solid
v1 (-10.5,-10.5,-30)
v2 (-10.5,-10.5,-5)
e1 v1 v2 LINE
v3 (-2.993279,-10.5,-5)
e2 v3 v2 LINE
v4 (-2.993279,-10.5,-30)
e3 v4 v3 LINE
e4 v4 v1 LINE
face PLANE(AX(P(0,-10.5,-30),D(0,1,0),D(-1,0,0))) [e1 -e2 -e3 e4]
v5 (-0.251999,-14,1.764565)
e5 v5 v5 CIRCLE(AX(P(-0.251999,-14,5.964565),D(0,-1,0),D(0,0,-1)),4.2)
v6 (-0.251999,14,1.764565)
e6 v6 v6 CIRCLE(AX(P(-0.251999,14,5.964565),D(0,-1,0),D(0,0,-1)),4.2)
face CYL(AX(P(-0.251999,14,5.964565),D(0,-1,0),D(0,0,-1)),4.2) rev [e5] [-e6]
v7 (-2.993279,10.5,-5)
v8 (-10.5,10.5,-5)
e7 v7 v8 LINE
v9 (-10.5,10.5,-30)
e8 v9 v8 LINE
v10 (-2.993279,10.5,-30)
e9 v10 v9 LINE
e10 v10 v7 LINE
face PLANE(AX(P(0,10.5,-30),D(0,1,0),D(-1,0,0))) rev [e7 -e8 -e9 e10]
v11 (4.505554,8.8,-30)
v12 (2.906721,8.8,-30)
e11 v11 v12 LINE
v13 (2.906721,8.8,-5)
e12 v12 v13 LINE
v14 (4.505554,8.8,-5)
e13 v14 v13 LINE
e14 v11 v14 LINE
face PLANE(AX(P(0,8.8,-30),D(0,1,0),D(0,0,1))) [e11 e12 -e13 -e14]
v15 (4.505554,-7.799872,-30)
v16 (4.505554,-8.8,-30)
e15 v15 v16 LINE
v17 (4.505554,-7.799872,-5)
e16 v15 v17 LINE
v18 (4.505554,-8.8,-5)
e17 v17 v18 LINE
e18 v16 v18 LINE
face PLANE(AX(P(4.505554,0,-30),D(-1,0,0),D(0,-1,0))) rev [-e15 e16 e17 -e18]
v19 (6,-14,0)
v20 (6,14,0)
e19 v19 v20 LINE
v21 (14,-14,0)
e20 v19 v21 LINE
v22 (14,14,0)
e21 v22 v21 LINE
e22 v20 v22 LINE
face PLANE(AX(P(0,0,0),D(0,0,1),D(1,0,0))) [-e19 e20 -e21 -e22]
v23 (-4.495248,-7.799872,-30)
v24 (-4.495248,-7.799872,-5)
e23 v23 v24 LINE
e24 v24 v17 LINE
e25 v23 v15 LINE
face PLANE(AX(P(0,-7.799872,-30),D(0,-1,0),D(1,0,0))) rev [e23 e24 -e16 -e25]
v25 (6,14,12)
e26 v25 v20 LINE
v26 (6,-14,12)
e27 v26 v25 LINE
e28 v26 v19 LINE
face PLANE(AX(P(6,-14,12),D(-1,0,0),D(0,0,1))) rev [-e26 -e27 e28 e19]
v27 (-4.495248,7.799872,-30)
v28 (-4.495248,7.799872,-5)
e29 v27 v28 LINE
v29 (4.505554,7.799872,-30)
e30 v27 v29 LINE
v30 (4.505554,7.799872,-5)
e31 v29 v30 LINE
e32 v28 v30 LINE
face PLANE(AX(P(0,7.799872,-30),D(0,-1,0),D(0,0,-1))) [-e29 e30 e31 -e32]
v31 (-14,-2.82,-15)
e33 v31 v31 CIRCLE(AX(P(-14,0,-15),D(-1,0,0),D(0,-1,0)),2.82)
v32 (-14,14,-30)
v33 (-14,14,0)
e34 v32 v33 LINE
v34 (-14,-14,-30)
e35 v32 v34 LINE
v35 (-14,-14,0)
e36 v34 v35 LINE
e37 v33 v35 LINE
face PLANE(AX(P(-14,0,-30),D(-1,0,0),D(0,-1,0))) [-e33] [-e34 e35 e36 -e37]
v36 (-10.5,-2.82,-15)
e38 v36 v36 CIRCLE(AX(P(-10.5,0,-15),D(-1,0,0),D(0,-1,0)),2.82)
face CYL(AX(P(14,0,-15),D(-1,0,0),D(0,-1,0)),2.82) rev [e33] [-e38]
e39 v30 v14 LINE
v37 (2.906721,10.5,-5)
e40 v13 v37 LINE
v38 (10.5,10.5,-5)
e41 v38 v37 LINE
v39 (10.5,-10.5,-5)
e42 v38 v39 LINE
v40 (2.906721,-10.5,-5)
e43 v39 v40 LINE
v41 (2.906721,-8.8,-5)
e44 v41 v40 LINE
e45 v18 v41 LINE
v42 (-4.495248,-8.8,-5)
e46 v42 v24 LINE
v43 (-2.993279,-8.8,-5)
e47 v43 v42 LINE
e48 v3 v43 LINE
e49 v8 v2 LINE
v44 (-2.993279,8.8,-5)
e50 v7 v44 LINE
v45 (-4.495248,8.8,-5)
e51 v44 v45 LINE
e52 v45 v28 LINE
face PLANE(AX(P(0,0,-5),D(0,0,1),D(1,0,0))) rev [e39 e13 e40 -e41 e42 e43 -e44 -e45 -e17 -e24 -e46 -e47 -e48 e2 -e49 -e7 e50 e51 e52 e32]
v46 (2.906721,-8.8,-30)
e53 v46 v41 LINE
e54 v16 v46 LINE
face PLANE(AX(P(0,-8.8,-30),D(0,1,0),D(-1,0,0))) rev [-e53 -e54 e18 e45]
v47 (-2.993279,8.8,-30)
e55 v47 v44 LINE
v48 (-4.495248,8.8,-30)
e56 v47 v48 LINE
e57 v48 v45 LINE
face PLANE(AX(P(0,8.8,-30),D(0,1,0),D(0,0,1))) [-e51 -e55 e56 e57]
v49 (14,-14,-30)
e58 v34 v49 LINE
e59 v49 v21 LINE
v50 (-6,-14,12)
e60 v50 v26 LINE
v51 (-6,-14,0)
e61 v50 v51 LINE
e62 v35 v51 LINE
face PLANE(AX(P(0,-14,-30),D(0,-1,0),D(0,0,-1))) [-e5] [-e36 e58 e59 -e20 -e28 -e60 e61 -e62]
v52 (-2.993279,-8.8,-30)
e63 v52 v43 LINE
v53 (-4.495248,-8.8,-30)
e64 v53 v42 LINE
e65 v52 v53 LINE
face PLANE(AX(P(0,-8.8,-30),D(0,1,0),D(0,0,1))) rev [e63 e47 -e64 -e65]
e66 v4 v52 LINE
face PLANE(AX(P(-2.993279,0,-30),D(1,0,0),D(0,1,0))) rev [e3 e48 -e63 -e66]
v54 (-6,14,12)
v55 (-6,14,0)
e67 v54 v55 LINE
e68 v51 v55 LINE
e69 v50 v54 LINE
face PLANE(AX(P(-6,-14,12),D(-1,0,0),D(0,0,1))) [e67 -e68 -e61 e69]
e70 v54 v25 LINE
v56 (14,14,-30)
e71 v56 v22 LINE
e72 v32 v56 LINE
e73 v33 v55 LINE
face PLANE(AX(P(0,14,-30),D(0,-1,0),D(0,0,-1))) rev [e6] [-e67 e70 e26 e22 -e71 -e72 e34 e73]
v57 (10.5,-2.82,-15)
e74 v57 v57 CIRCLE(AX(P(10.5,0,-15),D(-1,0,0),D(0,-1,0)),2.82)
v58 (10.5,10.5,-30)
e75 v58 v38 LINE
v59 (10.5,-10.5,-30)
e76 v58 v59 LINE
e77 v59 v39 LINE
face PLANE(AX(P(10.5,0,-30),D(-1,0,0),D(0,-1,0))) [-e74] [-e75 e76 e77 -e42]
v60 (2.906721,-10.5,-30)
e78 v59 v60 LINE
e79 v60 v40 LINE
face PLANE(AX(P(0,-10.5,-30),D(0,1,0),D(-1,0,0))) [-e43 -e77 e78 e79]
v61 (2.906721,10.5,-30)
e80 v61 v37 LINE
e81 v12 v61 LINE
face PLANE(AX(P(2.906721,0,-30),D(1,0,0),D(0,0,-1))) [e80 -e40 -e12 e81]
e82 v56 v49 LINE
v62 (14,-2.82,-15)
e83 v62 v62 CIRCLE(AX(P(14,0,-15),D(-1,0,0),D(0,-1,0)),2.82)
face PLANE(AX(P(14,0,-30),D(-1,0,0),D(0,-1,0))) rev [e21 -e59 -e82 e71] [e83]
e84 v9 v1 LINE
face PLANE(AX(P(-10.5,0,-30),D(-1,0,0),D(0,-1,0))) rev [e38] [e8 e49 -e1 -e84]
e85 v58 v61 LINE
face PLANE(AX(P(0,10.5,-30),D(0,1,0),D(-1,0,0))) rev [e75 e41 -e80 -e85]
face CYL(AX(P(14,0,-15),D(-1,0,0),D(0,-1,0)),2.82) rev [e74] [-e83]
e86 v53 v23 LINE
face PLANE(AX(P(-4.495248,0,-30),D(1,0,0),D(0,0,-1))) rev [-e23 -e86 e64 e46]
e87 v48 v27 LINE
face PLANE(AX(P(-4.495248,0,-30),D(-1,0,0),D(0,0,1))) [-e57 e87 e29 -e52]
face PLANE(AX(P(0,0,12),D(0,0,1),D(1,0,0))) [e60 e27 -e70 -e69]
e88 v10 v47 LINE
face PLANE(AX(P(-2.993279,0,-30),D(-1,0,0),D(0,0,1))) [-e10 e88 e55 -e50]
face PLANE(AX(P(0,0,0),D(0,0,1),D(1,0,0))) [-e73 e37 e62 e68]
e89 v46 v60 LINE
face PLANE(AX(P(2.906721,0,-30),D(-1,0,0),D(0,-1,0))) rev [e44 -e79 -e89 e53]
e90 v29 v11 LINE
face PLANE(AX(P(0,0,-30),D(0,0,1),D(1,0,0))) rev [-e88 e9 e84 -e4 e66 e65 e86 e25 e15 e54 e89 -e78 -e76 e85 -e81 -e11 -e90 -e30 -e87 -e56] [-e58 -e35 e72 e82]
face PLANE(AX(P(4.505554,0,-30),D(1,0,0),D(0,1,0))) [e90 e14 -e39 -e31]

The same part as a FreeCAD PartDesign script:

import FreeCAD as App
import Part
import Sketcher
from FreeCAD import Vector
Q = App.Units.Quantity


def add_polygon(sketch, points):
    """Adds a closed chain of lines whose ends are joined by coincident constraints."""
    first, n = sketch.GeometryCount, len(points)
    for a, b in zip(points, points[1:] + points[:1]):
        sketch.addGeometry(Part.LineSegment(App.Vector(*a, 0), App.Vector(*b, 0)), False)
    for i in range(n):
        sketch.addConstraint(Sketcher.Constraint("Coincident", first + i, 2, first + (i + 1) % n, 1))

doc = App.newDocument("Part")
params = doc.addObject("Spreadsheet::Sheet", "Params")
for row, (alias, value) in enumerate([
    ("sketch1_width", "5.9 mm"),
    ("sketch1_height", "1.7 mm"),
    ("pad1_length", "30 mm"),
    ("sketch2_width", "5.9 mm"),
    ("sketch2_height", "1.7 mm"),
    ("pad2_length", "30 mm"),
    ("sketch3_height", "21 mm"),
    ("sketch3_height2", "1.7 mm"),
    ("pad3_length", "5 mm"),
    ("sketch4_width", "28 mm"),
    ("sketch4_width2", "21 mm"),
    ("pad4_length", "30 mm"),
    ("sketch5_diameter", "5.64 mm"),
    ("sketch6_width", "12 mm"),
    ("sketch6_height", "28 mm"),
    ("pad5_length", "12 mm"),
    ("sketch7_diameter", "8.4 mm"),
], start=1):
    params.set(f"A{row}", alias)
    params.set(f"B{row}", "=" + value)
    params.setAlias(f"B{row}", alias)

body = doc.addObject("PartDesign::Body", "Body")

sketch1 = body.newObject("Sketcher::SketchObject", "Sketch")
sketch1.AttachmentSupport = (doc.getObject("XY_Plane"), [""])
sketch1.MapMode = "FlatFace"
add_polygon(sketch1, [(-3, -10.5), (2.9, -10.5), (2.9, -8.8), (4.5, -8.8), (4.5, -7.8), (-4.5, -7.8), (-4.5, -8.8), (-3, -8.8)])
sketch1.addConstraint(Sketcher.Constraint("Horizontal", 0))
sketch1.addConstraint(Sketcher.Constraint("Vertical", 1))
sketch1.addConstraint(Sketcher.Constraint("Horizontal", 2))
sketch1.addConstraint(Sketcher.Constraint("Vertical", 3))
sketch1.addConstraint(Sketcher.Constraint("Horizontal", 4))
sketch1.addConstraint(Sketcher.Constraint("Vertical", 5))
sketch1.addConstraint(Sketcher.Constraint("Horizontal", 6))
sketch1.addConstraint(Sketcher.Constraint("Vertical", 7))
sketch1.addConstraint(Sketcher.Constraint("Horizontal", 2, 2, 5, 2))
sketch1.addConstraint(Sketcher.Constraint("DistanceX", 0, 1, 0, 2, Q("5.9 mm")))
sketch1.addConstraint(Sketcher.Constraint("DistanceY", 1, 1, 1, 2, Q("1.7 mm")))
sketch1.addConstraint(Sketcher.Constraint("DistanceY", 0, 2, -1, 1, Q("10.5 mm")))
sketch1.addConstraint(Sketcher.Constraint("DistanceX", 6, 1, 6, 2, Q("1.501969 mm")))
sketch1.addConstraint(Sketcher.Constraint("DistanceY", 3, 1, 3, 2, Q("1.000128 mm")))
sketch1.addConstraint(Sketcher.Constraint("DistanceX", 2, 1, 2, 2, Q("1.598833 mm")))
sketch1.addConstraint(Sketcher.Constraint("DistanceX", -1, 1, 0, 2, Q("2.906721 mm")))
sketch1.setExpression("Constraints[17]", "Params.sketch1_width")
sketch1.setExpression("Constraints[18]", "Params.sketch1_height")
pad1 = body.newObject("PartDesign::Pad", "Pad")
pad1.Profile = sketch1
pad1.setExpression("Length", "Params.pad1_length")
pad1.Reversed = True
body2 = doc.addObject("PartDesign::Body", "Body001")

sketch2 = body2.newObject("Sketcher::SketchObject", "Sketch001")
sketch2.AttachmentSupport = (doc.getObject("XY_Plane001"), [""])
sketch2.MapMode = "FlatFace"
add_polygon(sketch2, [(2.9, 8.8), (2.9, 10.5), (-3, 10.5), (-3, 8.8), (-4.5, 8.8), (-4.5, 7.8), (4.5, 7.8), (4.5, 8.8)])
sketch2.addConstraint(Sketcher.Constraint("Vertical", 0))
sketch2.addConstraint(Sketcher.Constraint("Horizontal", 1))
sketch2.addConstraint(Sketcher.Constraint("Vertical", 2))
sketch2.addConstraint(Sketcher.Constraint("Horizontal", 3))
sketch2.addConstraint(Sketcher.Constraint("Vertical", 4))
sketch2.addConstraint(Sketcher.Constraint("Horizontal", 5))
sketch2.addConstraint(Sketcher.Constraint("Vertical", 6))
sketch2.addConstraint(Sketcher.Constraint("Horizontal", 7))
sketch2.addConstraint(Sketcher.Constraint("Horizontal", 3, 2, 6, 2))
sketch2.addConstraint(Sketcher.Constraint("DistanceX", 1, 2, 1, 1, Q("5.9 mm")))
sketch2.addConstraint(Sketcher.Constraint("DistanceY", 0, 1, 0, 2, Q("1.7 mm")))
sketch2.addConstraint(Sketcher.Constraint("DistanceY", -1, 1, 0, 2, Q("10.5 mm")))
sketch2.addConstraint(Sketcher.Constraint("DistanceX", 3, 2, 3, 1, Q("1.501969 mm")))
sketch2.addConstraint(Sketcher.Constraint("DistanceY", 4, 2, 4, 1, Q("1.000128 mm")))
sketch2.addConstraint(Sketcher.Constraint("DistanceX", 5, 1, 5, 2, Q("9.000802 mm")))
sketch2.addConstraint(Sketcher.Constraint("DistanceX", -1, 1, 0, 2, Q("2.906721 mm")))
sketch2.setExpression("Constraints[17]", "Params.sketch2_width")
sketch2.setExpression("Constraints[18]", "Params.sketch2_height")
pad2 = body2.newObject("PartDesign::Pad", "Pad001")
pad2.Profile = sketch2
pad2.setExpression("Length", "Params.pad2_length")
pad2.Reversed = True
body.AllowCompound = True
doc.recompute()

boolean = body.newObject("PartDesign::Boolean", "Boolean")
boolean.Type = "Fuse"
boolean.addObjects([body2])

sketch3 = body.newObject("Sketcher::SketchObject", "Sketch002")
sketch3.AttachmentSupport = (doc.getObject("XY_Plane"), [""])
sketch3.MapMode = "FlatFace"
add_polygon(sketch3, [(10.5, 10.5), (2.9, 10.5), (2.9, 8.8), (4.5, 8.8), (4.5, 7.8), (-4.5, 7.8), (-4.5, 8.8), (-3, 8.8), (-3, 10.5), (-10.5, 10.5), (-10.5, -10.5), (-3, -10.5), (-3, -8.8), (-4.5, -8.8), (-4.5, -7.8), (4.5, -7.8), (4.5, -8.8), (2.9, -8.8), (2.9, -10.5), (10.5, -10.5)])
sketch3.addConstraint(Sketcher.Constraint("Horizontal", 0))
sketch3.addConstraint(Sketcher.Constraint("Vertical", 1))
sketch3.addConstraint(Sketcher.Constraint("Horizontal", 2))
sketch3.addConstraint(Sketcher.Constraint("Vertical", 3))
sketch3.addConstraint(Sketcher.Constraint("Horizontal", 4))
sketch3.addConstraint(Sketcher.Constraint("Vertical", 5))
sketch3.addConstraint(Sketcher.Constraint("Horizontal", 6))
sketch3.addConstraint(Sketcher.Constraint("Vertical", 7))
sketch3.addConstraint(Sketcher.Constraint("Horizontal", 8))
sketch3.addConstraint(Sketcher.Constraint("Vertical", 9))
sketch3.addConstraint(Sketcher.Constraint("Horizontal", 10))
sketch3.addConstraint(Sketcher.Constraint("Vertical", 11))
sketch3.addConstraint(Sketcher.Constraint("Horizontal", 12))
sketch3.addConstraint(Sketcher.Constraint("Vertical", 13))
sketch3.addConstraint(Sketcher.Constraint("Horizontal", 14))
sketch3.addConstraint(Sketcher.Constraint("Vertical", 15))
sketch3.addConstraint(Sketcher.Constraint("Horizontal", 16))
sketch3.addConstraint(Sketcher.Constraint("Vertical", 17))
sketch3.addConstraint(Sketcher.Constraint("Horizontal", 18))
sketch3.addConstraint(Sketcher.Constraint("Vertical", 19))
sketch3.addConstraint(Sketcher.Constraint("Symmetric", 8, 2, 18, 2, -1, 1))
sketch3.addConstraint(Sketcher.Constraint("Symmetric", 7, 2, 10, 2, -1))
sketch3.addConstraint(Sketcher.Constraint("Symmetric", 5, 2, 12, 2, -1))
sketch3.addConstraint(Sketcher.Constraint("Symmetric", 3, 2, 14, 2, -1))
sketch3.addConstraint(Sketcher.Constraint("Symmetric", 1, 2, 16, 2, -1))
sketch3.addConstraint(Sketcher.Constraint("Horizontal", 2, 2, 5, 2))
sketch3.addConstraint(Sketcher.Constraint("Horizontal", 0, 2, 7, 2))
sketch3.addConstraint(Sketcher.Constraint("DistanceY", 9, 2, 9, 1, Q("21 mm")))
sketch3.addConstraint(Sketcher.Constraint("DistanceY", 1, 2, 1, 1, Q("1.7 mm")))
sketch3.addConstraint(Sketcher.Constraint("DistanceX", 8, 2, -1, 1, Q("10.5 mm")))
sketch3.addConstraint(Sketcher.Constraint("DistanceX", 6, 2, 1, 2, Q("5.9 mm")))
sketch3.addConstraint(Sketcher.Constraint("DistanceX", 0, 2, 0, 1, Q("7.593279 mm")))
sketch3.addConstraint(Sketcher.Constraint("DistanceX", 6, 1, 6, 2, Q("1.501969 mm")))
sketch3.addConstraint(Sketcher.Constraint("DistanceY", 3, 2, 3, 1, Q("1.000128 mm")))
sketch3.addConstraint(Sketcher.Constraint("DistanceX", 2, 1, 2, 2, Q("1.598833 mm")))
sketch3.setExpression("Constraints[47]", "Params.sketch3_height")
sketch3.setExpression("Constraints[48]", "Params.sketch3_height2")
pad3 = body.newObject("PartDesign::Pad", "Pad002")
pad3.Profile = sketch3
pad3.setExpression("Length", "Params.pad3_length")
pad3.Reversed = True

sketch4 = body.newObject("Sketcher::SketchObject", "Sketch003")
sketch4.AttachmentSupport = (doc.getObject("XY_Plane"), [""])
sketch4.MapMode = "FlatFace"
add_polygon(sketch4, [(-14, 14), (-14, -14), (14, -14), (14, 14)])
add_polygon(sketch4, [(10, -10), (-10, -10), (-10, 10), (10, 10)])
sketch4.addConstraint(Sketcher.Constraint("Vertical", 0))
sketch4.addConstraint(Sketcher.Constraint("Horizontal", 1))
sketch4.addConstraint(Sketcher.Constraint("Vertical", 2))
sketch4.addConstraint(Sketcher.Constraint("Horizontal", 3))
sketch4.addConstraint(Sketcher.Constraint("Horizontal", 4))
sketch4.addConstraint(Sketcher.Constraint("Vertical", 5))
sketch4.addConstraint(Sketcher.Constraint("Horizontal", 6))
sketch4.addConstraint(Sketcher.Constraint("Vertical", 7))
sketch4.addConstraint(Sketcher.Constraint("Symmetric", 0, 2, 2, 2, -1, 1))
sketch4.addConstraint(Sketcher.Constraint("Symmetric", 4, 2, 6, 2, -1, 1))
sketch4.addConstraint(Sketcher.Constraint("Equal", 3, 0))
sketch4.addConstraint(Sketcher.Constraint("Equal", 6, 5))
sketch4.addConstraint(Sketcher.Constraint("DistanceX", 1, 1, 1, 2, Q("28 mm")))
sketch4.addConstraint(Sketcher.Constraint("DistanceX", 4, 2, 4, 1, Q("21 mm")))
sketch4.setExpression("Constraints[20]", "Params.sketch4_width")
sketch4.setExpression("Constraints[21]", "Params.sketch4_width2")
pad4 = body.newObject("PartDesign::Pad", "Pad003")
pad4.Profile = sketch4
pad4.setExpression("Length", "Params.pad4_length")
pad4.Reversed = True

sketch5 = body.newObject("Sketcher::SketchObject", "Sketch004")
sketch5.AttachmentSupport = (doc.getObject("YZ_Plane"), [""])
sketch5.MapMode = "FlatFace"
sketch5.AttachmentOffset = App.Placement(Vector(0, 0, -14), App.Rotation())
sketch5.addGeometry(Part.Circle(Vector(0, -15, 0), Vector(0, 0, 1), 2.8), False)
sketch5.addConstraint(Sketcher.Constraint("PointOnObject", 0, 3, -2))
sketch5.addConstraint(Sketcher.Constraint("Diameter", 0, Q("5.64 mm")))
sketch5.addConstraint(Sketcher.Constraint("DistanceY", 0, 3, -1, 1, Q("15 mm")))
sketch5.setExpression("Constraints[1]", "Params.sketch5_diameter")
pocket1 = body.newObject("PartDesign::Pocket", "Pocket")
pocket1.Profile = sketch5
pocket1.Type = "ThroughAll"
pocket1.Reversed = True

sketch6 = body.newObject("Sketcher::SketchObject", "Sketch005")
sketch6.AttachmentSupport = (doc.getObject("XY_Plane"), [""])
sketch6.MapMode = "FlatFace"
add_polygon(sketch6, [(-6, 14), (-6, -14), (6, -14), (6, 14)])
sketch6.addConstraint(Sketcher.Constraint("Vertical", 0))
sketch6.addConstraint(Sketcher.Constraint("Horizontal", 1))
sketch6.addConstraint(Sketcher.Constraint("Vertical", 2))
sketch6.addConstraint(Sketcher.Constraint("Horizontal", 3))
sketch6.addConstraint(Sketcher.Constraint("Symmetric", 0, 2, 2, 2, -1, 1))
sketch6.addConstraint(Sketcher.Constraint("DistanceX", 1, 1, 1, 2, Q("12 mm")))
sketch6.addConstraint(Sketcher.Constraint("DistanceY", 0, 2, 0, 1, Q("28 mm")))
sketch6.setExpression("Constraints[9]", "Params.sketch6_width")
sketch6.setExpression("Constraints[10]", "Params.sketch6_height")
pad5 = body.newObject("PartDesign::Pad", "Pad004")
pad5.Profile = sketch6
pad5.setExpression("Length", "Params.pad5_length")

sketch7 = body.newObject("Sketcher::SketchObject", "Sketch006")
sketch7.AttachmentSupport = (doc.getObject("XZ_Plane"), [""])
sketch7.MapMode = "FlatFace"
sketch7.AttachmentOffset = App.Placement(Vector(0, 0, 14), App.Rotation())
sketch7.addGeometry(Part.Circle(Vector(-0.3, 6, 0), Vector(0, 0, 1), 4.2), False)
sketch7.addConstraint(Sketcher.Constraint("Diameter", 0, Q("8.4 mm")))
sketch7.addConstraint(Sketcher.Constraint("DistanceX", 0, 3, -1, 1, Q("0.251999 mm")))
sketch7.addConstraint(Sketcher.Constraint("DistanceY", -1, 1, 0, 3, Q("5.964565 mm")))
sketch7.setExpression("Constraints[0]", "Params.sketch7_diameter")
pocket2 = body.newObject("PartDesign::Pocket", "Pocket001")
pocket2.Profile = sketch7
pocket2.Type = "ThroughAll"

doc.recompute()
